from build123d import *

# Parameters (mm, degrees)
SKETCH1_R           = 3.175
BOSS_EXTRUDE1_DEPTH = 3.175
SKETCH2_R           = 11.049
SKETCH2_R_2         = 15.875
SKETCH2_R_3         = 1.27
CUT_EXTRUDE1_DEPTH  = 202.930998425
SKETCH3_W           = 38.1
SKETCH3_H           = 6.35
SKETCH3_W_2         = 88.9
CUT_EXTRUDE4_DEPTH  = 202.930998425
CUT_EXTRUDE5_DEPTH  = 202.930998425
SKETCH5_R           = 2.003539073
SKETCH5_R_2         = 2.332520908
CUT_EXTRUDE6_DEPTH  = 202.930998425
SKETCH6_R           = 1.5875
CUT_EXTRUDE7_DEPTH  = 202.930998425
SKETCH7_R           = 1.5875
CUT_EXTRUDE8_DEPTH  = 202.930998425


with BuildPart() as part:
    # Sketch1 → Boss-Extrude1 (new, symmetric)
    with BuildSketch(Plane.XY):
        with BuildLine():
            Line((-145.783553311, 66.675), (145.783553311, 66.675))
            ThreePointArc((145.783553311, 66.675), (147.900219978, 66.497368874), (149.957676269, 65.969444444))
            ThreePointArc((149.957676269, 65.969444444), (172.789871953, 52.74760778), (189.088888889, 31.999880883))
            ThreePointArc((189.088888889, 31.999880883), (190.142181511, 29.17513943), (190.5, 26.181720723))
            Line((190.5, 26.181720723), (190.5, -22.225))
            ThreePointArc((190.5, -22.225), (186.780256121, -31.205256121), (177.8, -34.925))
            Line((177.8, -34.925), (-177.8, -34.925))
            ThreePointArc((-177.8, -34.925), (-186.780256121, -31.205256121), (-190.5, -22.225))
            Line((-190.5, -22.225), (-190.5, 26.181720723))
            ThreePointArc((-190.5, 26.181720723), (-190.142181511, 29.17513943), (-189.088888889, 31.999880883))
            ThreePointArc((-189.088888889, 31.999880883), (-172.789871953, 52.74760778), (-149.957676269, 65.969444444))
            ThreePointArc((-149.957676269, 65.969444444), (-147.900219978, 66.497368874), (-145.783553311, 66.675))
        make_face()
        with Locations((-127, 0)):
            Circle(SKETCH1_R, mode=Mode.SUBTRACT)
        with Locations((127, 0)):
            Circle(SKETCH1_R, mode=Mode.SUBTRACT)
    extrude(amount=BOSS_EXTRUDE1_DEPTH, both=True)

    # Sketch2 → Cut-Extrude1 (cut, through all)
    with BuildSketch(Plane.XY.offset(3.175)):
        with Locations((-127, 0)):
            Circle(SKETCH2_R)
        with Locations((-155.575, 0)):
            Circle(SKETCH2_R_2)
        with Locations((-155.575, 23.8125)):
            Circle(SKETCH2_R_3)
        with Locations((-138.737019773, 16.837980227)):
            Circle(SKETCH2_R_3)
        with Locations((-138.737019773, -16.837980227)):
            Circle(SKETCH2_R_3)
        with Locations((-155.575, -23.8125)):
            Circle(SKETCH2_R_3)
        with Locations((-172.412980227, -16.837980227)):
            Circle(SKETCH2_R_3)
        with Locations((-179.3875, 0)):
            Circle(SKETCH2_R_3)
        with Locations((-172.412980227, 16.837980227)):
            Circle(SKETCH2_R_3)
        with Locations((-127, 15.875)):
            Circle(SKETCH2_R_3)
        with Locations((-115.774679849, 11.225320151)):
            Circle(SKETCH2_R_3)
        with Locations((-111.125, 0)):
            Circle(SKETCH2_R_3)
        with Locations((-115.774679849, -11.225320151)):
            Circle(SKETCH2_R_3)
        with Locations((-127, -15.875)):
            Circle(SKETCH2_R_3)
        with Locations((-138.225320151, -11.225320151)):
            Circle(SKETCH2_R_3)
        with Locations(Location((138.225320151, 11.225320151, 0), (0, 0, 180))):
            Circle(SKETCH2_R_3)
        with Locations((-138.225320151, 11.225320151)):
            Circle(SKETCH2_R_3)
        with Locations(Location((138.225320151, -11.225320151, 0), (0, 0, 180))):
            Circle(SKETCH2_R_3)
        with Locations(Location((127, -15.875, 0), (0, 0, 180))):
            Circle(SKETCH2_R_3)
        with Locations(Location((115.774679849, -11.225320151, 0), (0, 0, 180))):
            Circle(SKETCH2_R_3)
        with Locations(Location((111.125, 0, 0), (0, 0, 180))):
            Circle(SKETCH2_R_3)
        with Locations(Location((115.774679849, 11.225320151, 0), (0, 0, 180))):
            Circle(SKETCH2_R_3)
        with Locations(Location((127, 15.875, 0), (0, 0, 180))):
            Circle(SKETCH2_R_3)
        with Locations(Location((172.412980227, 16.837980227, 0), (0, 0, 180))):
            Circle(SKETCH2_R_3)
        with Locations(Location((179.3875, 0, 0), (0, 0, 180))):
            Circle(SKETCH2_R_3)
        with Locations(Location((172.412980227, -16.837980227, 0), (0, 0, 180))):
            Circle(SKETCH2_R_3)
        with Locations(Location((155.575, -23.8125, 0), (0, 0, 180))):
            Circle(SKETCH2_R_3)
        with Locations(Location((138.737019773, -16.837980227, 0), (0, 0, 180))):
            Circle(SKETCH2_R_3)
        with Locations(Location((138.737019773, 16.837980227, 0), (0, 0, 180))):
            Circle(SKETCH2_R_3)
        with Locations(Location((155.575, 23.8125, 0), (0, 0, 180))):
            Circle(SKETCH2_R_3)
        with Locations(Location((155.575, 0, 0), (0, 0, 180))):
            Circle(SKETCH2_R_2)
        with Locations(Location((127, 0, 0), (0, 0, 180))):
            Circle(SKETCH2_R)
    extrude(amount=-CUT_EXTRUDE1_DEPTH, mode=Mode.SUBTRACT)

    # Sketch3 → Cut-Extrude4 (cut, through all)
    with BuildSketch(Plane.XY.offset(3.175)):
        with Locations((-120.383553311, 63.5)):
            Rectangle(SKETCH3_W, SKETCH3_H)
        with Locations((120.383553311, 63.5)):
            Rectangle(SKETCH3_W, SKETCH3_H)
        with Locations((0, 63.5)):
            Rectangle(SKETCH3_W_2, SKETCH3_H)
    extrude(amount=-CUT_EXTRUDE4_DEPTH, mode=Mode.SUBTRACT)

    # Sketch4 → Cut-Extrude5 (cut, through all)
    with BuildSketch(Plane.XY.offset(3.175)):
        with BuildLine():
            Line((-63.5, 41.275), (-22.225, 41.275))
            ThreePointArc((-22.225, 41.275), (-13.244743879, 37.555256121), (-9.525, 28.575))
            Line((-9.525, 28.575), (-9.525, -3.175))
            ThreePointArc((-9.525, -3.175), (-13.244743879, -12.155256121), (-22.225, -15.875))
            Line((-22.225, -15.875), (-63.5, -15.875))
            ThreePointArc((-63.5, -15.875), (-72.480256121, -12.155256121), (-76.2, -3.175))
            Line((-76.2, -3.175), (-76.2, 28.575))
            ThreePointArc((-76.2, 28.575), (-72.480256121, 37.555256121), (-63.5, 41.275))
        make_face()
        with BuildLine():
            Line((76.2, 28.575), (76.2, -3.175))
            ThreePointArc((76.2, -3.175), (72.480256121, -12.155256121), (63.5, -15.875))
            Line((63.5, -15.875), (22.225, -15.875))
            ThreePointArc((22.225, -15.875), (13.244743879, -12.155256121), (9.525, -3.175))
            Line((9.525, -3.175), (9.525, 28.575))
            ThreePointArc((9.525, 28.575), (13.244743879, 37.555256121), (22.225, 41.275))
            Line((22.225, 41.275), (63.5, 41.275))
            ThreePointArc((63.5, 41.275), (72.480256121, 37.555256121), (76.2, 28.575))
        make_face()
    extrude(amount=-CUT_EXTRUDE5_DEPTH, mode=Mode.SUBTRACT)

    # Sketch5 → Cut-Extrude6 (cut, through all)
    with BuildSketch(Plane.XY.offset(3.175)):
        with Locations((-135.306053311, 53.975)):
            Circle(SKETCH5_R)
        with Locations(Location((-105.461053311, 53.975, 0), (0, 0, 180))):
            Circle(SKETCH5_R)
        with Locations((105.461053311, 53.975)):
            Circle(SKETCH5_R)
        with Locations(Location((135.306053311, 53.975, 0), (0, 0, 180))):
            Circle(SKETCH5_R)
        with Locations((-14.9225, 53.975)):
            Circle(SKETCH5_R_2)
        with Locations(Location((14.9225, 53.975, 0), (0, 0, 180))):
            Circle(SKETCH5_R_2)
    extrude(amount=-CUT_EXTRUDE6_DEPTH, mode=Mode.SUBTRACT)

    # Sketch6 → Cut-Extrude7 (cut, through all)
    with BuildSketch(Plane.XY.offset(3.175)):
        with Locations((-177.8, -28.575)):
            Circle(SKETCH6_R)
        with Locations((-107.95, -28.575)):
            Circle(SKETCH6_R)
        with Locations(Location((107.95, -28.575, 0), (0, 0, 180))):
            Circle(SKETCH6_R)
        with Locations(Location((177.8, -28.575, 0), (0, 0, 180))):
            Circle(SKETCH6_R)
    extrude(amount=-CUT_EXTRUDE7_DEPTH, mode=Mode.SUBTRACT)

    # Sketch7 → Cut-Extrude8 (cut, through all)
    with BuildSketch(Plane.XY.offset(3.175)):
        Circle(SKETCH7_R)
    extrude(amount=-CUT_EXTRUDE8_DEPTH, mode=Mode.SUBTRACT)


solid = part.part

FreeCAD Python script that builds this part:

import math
import FreeCAD as App
import Part
import Sketcher
from FreeCAD import Vector
Q = App.Units.Quantity


def add_polygon(sketch, points):
    """Adds a closed chain of lines whose ends are joined by coincident constraints."""
    first, n = sketch.GeometryCount, len(points)
    for a, b in zip(points, points[1:] + points[:1]):
        sketch.addGeometry(Part.LineSegment(App.Vector(*a, 0), App.Vector(*b, 0)), False)
    for i in range(n):
        sketch.addConstraint(Sketcher.Constraint("Coincident", first + i, 2, first + (i + 1) % n, 1))

doc = App.newDocument("Part")
params = doc.addObject("Spreadsheet::Sheet", "Params")
for row, (alias, value) in enumerate([
    ("sketch1_radius", "0.5 in"),
    ("sketch1_diameter", "0.25 in"),
    ("sketch1_width", "14 in"),
    ("sketch1_radius2", "2.75 in"),
    ("pad1_length", "0.25 in"),
    ("sketch2_diameter", "0.1 in"),
    ("sketch2_diameter2", "0.87 in"),
    ("sketch2_diameter3", "1.25 in"),
    ("sketch3_width", "1.5 in"),
    ("sketch3_width2", "3.5 in"),
    ("sketch3_height", "0.25 in"),
    ("sketch4_radius", "0.5 in"),
    ("sketch4_height", "1.25 in"),
    ("sketch4_width", "1.625 in"),
    ("sketch6_diameter", "0.125 in"),
    ("sketch7_diameter", "0.125 in"),
], start=1):
    params.set(f"A{row}", alias)
    params.set(f"B{row}", "=" + value)
    params.setAlias(f"B{row}", alias)

body = doc.addObject("PartDesign::Body", "Body")

sketch1 = doc.addObject("Sketcher::SketchObject", "Sketch")
body.addObject(sketch1)
sketch1.AttachmentSupport = (doc.XY_Plane, [""])
sketch1.MapMode = "FlatFace"
sketch1.addGeometry([
    Part.LineSegment(Vector(145.783553, 66.675, 0), Vector(-145.783553, 66.675, 0)),
    Part.ArcOfCircle(Part.Circle(Vector(-145.783553, 53.975, 0), Vector(0, 0, 1), 12.7), math.radians(90), math.radians(109.188136)),
    Part.ArcOfCircle(Part.Circle(Vector(-127, 0, 0), Vector(0, 0, 1), 69.85), math.radians(109.188136), math.radians(152.733956)),
    Part.ArcOfCircle(Part.Circle(Vector(-177.8, 26.181721, 0), Vector(0, 0, 1), 12.7), math.radians(152.733956), math.radians(180)),
    Part.LineSegment(Vector(-190.5, 26.181721, 0), Vector(-190.5, -22.225, 0)),
    Part.ArcOfCircle(Part.Circle(Vector(-177.8, -22.225, 0), Vector(0, 0, 1), 12.7), math.radians(180), math.radians(270)),
    Part.LineSegment(Vector(-177.8, -34.925, 0), Vector(177.8, -34.925, 0)),
    Part.ArcOfCircle(Part.Circle(Vector(177.8, -22.225, 0), Vector(0, 0, 1), 12.7), math.radians(-90), math.radians(0)),
    Part.LineSegment(Vector(190.5, -22.225, 0), Vector(190.5, 26.181721, 0)),
    Part.ArcOfCircle(Part.Circle(Vector(177.8, 26.181721, 0), Vector(0, 0, 1), 12.7), math.radians(0), math.radians(27.266044)),
    Part.ArcOfCircle(Part.Circle(Vector(127, 0, 0), Vector(0, 0, 1), 69.85), math.radians(27.266044), math.radians(70.811864)),
    Part.ArcOfCircle(Part.Circle(Vector(145.783553, 53.975, 0), Vector(0, 0, 1), 12.7), math.radians(70.811864), math.radians(90)),
    Part.Circle(Vector(127, 0, 0), Vector(0, 0, 1), 3.175),
    Part.Circle(Vector(-127, 0, 0), Vector(0, 0, 1), 3.175),
], False)
sketch1.addConstraint([
    Sketcher.Constraint("Tangent", 0, 2, 1, 1),
    Sketcher.Constraint("Tangent", 1, 2, 2, 1),
    Sketcher.Constraint("Tangent", 2, 2, 3, 1),
    Sketcher.Constraint("Tangent", 3, 2, 4, 1),
    Sketcher.Constraint("Tangent", 4, 2, 5, 1),
    Sketcher.Constraint("Tangent", 5, 2, 6, 1),
    Sketcher.Constraint("Tangent", 6, 2, 7, 1),
    Sketcher.Constraint("Tangent", 7, 2, 8, 1),
    Sketcher.Constraint("Tangent", 8, 2, 9, 1),
    Sketcher.Constraint("Tangent", 9, 2, 10, 1),
    Sketcher.Constraint("Tangent", 10, 2, 11, 1),
    Sketcher.Constraint("Tangent", 11, 2, 0, 1),
    Sketcher.Constraint("Horizontal", 0),
    Sketcher.Constraint("Vertical", 4),
    Sketcher.Constraint("Horizontal", 6),
    Sketcher.Constraint("Vertical", 8),
    Sketcher.Constraint("Coincident", 12, 3, 10, 3),
    Sketcher.Constraint("Coincident", 13, 3, 2, 3),
    Sketcher.Constraint("Equal", 1, 3),
    Sketcher.Constraint("Equal", 3, 5),
    Sketcher.Constraint("Equal", 5, 7),
    Sketcher.Constraint("Equal", 7, 9),
    Sketcher.Constraint("Equal", 2, 10),
    Sketcher.Constraint("Equal", 9, 11),
    Sketcher.Constraint("Equal", 12, 13),
    Sketcher.Constraint("Symmetric", 2, 3, 10, 3, -1, 1),
    Sketcher.Constraint("Symmetric", 3, 3, 9, 3, -2),
    Sketcher.Constraint("Radius", 1, Q("0.5 in")),
    Sketcher.Constraint("Diameter", 12, Q("0.25 in")),
    Sketcher.Constraint("DistanceX", 6, 1, 6, 2, Q("14 in")),
    Sketcher.Constraint("Radius", 2, Q("2.75 in")),
    Sketcher.Constraint("DistanceX", 2, 3, -1, 1, Q("5 in")),
    Sketcher.Constraint("DistanceY", 5, 3, 1, 3, Q("3 in")),
    Sketcher.Constraint("DistanceY", -1, 1, 1, 3, Q("2.125 in")),
])
sketch1.setExpression("Constraints[27]", "Params.sketch1_radius")
sketch1.setExpression("Constraints[28]", "Params.sketch1_diameter")
sketch1.setExpression("Constraints[29]", "Params.sketch1_width")
sketch1.setExpression("Constraints[30]", "Params.sketch1_radius2")
pad1 = doc.addObject("PartDesign::Pad", "Pad")
body.addObject(pad1)
pad1.Profile = sketch1
pad1.setExpression("Length", "Params.pad1_length")
pad1.Midplane = True

sketch2 = doc.addObject("Sketcher::SketchObject", "Sketch001")
body.addObject(sketch2)
sketch2.AttachmentSupport = (doc.XY_Plane, [""])
sketch2.MapMode = "FlatFace"
sketch2.AttachmentOffset = App.Placement(Vector(0, 0, 0.125 * 25.4), App.Rotation())
sketch2.addGeometry([
    Part.Circle(Vector(-127, 0, 0), Vector(0, 0, 1), 11.049),
    Part.Circle(Vector(-155.575, 0, 0), Vector(0, 0, 1), 15.875),
    Part.Circle(Vector(-155.575, 23.8125, 0), Vector(0, 0, 1), 1.27),
    Part.Circle(Vector(-138.73702, 16.83798, 0), Vector(0, 0, 1), 1.27),
    Part.Circle(Vector(-138.73702, -16.83798, 0), Vector(0, 0, 1), 1.27),
    Part.Circle(Vector(-155.575, -23.8125, 0), Vector(0, 0, 1), 1.27),
    Part.Circle(Vector(-172.41298, -16.83798, 0), Vector(0, 0, 1), 1.27),
    Part.Circle(Vector(-179.3875, 0, 0), Vector(0, 0, 1), 1.27),
    Part.Circle(Vector(-172.41298, 16.83798, 0), Vector(0, 0, 1), 1.27),
    Part.Circle(Vector(-127, 15.875, 0), Vector(0, 0, 1), 1.27),
    Part.Circle(Vector(-115.77468, 11.22532, 0), Vector(0, 0, 1), 1.27),
    Part.Circle(Vector(-111.125, 0, 0), Vector(0, 0, 1), 1.27),
    Part.Circle(Vector(-115.77468, -11.22532, 0), Vector(0, 0, 1), 1.27),
    Part.Circle(Vector(-127, -15.875, 0), Vector(0, 0, 1), 1.27),
    Part.Circle(Vector(-138.22532, -11.22532, 0), Vector(0, 0, 1), 1.27),
    Part.Circle(Vector(138.22532, 11.22532, 0), Vector(0, 0, 1), 1.27),
    Part.Circle(Vector(-138.22532, 11.22532, 0), Vector(0, 0, 1), 1.27),
    Part.Circle(Vector(138.22532, -11.22532, 0), Vector(0, 0, 1), 1.27),
    Part.Circle(Vector(127, -15.875, 0), Vector(0, 0, 1), 1.27),
    Part.Circle(Vector(115.77468, -11.22532, 0), Vector(0, 0, 1), 1.27),
    Part.Circle(Vector(111.125, 0, 0), Vector(0, 0, 1), 1.27),
    Part.Circle(Vector(115.77468, 11.22532, 0), Vector(0, 0, 1), 1.27),
    Part.Circle(Vector(127, 15.875, 0), Vector(0, 0, 1), 1.27),
    Part.Circle(Vector(172.41298, 16.83798, 0), Vector(0, 0, 1), 1.27),
    Part.Circle(Vector(179.3875, 0, 0), Vector(0, 0, 1), 1.27),
    Part.Circle(Vector(172.41298, -16.83798, 0), Vector(0, 0, 1), 1.27),
    Part.Circle(Vector(155.575, -23.8125, 0), Vector(0, 0, 1), 1.27),
    Part.Circle(Vector(138.73702, -16.83798, 0), Vector(0, 0, 1), 1.27),
    Part.Circle(Vector(138.73702, 16.83798, 0), Vector(0, 0, 1), 1.27),
    Part.Circle(Vector(155.575, 23.8125, 0), Vector(0, 0, 1), 1.27),
    Part.Circle(Vector(155.575, 0, 0), Vector(0, 0, 1), 15.875),
    Part.Circle(Vector(127, 0, 0), Vector(0, 0, 1), 11.049),
], False)
sketch2.addConstraint([
    Sketcher.Constraint("Equal", 2, 3),
    Sketcher.Constraint("Equal", 3, 4),
    Sketcher.Constraint("Equal", 4, 5),
    Sketcher.Constraint("Equal", 5, 6),
    Sketcher.Constraint("Equal", 6, 7),
    Sketcher.Constraint("Equal", 7, 8),
    Sketcher.Constraint("Equal", 8, 9),
    Sketcher.Constraint("Equal", 9, 10),
    Sketcher.Constraint("Equal", 10, 11),
    Sketcher.Constraint("Equal", 11, 12),
    Sketcher.Constraint("Equal", 12, 13),
    Sketcher.Constraint("Equal", 13, 14),
    Sketcher.Constraint("Equal", 14, 15),
    Sketcher.Constraint("Equal", 15, 16),
    Sketcher.Constraint("Equal", 16, 17),
    Sketcher.Constraint("Equal", 17, 18),
    Sketcher.Constraint("Equal", 18, 19),
    Sketcher.Constraint("Equal", 19, 20),
    Sketcher.Constraint("Equal", 20, 21),
    Sketcher.Constraint("Equal", 21, 22),
    Sketcher.Constraint("Equal", 22, 23),
    Sketcher.Constraint("Equal", 23, 24),
    Sketcher.Constraint("Equal", 24, 25),
    Sketcher.Constraint("Equal", 25, 26),
    Sketcher.Constraint("Equal", 26, 27),
    Sketcher.Constraint("Equal", 27, 28),
    Sketcher.Constraint("Equal", 28, 29),
    Sketcher.Constraint("Equal", 1, 30),
    Sketcher.Constraint("Equal", 0, 31),
    Sketcher.Constraint("Symmetric", 14, 3, 15, 3, -1, 1),
    Sketcher.Constraint("Symmetric", 16, 3, 17, 3, -1, 1),
    Sketcher.Constraint("Symmetric", 9, 3, 18, 3, -1, 1),
    Sketcher.Constraint("Symmetric", 10, 3, 19, 3, -1, 1),
    Sketcher.Constraint("Symmetric", 11, 3, 20, 3, -1, 1),
    Sketcher.Constraint("Symmetric", 12, 3, 21, 3, -1, 1),
    Sketcher.Constraint("Symmetric", 13, 3, 22, 3, -1, 1),
    Sketcher.Constraint("Symmetric", 6, 3, 23, 3, -1, 1),
    Sketcher.Constraint("Symmetric", 7, 3, 24, 3, -1, 1),
    Sketcher.Constraint("Symmetric", 8, 3, 25, 3, -1, 1),
    Sketcher.Constraint("Symmetric", 2, 3, 26, 3, -1, 1),
    Sketcher.Constraint("Symmetric", 3, 3, 27, 3, -1, 1),
    Sketcher.Constraint("Symmetric", 4, 3, 28, 3, -1, 1),
    Sketcher.Constraint("Symmetric", 5, 3, 29, 3, -1, 1),
    Sketcher.Constraint("Symmetric", 1, 3, 30, 3, -1, 1),
    Sketcher.Constraint("Symmetric", 0, 3, 31, 3, -1, 1),
    Sketcher.Constraint("Symmetric", 15, 3, 16, 3, -2),
    Sketcher.Constraint("Symmetric", 13, 3, 18, 3, -2),
    Sketcher.Constraint("Symmetric", 12, 3, 19, 3, -2),
    Sketcher.Constraint("Symmetric", 8, 3, 23, 3, -2),
    Sketcher.Constraint("Symmetric", 5, 3, 26, 3, -2),
    Sketcher.Constraint("Symmetric", 4, 3, 27, 3, -2),
    Sketcher.Constraint("PointOnObject", 0, 3, -1),
    Sketcher.Constraint("PointOnObject", 1, 3, -1),
    Sketcher.Constraint("PointOnObject", 7, 3, -1),
    Sketcher.Constraint("PointOnObject", 11, 3, -1),
    Sketcher.Constraint("Horizontal", 4, 3, 6, 3),
    Sketcher.Constraint("Horizontal", 12, 3, 14, 3),
    Sketcher.Constraint("Vertical", 1, 3, 2, 3),
    Sketcher.Constraint("Vertical", 0, 3, 9, 3),
    Sketcher.Constraint("Diameter", 2, Q("0.1 in")),
    Sketcher.Constraint("Diameter", 0, Q("0.87 in")),
    Sketcher.Constraint("Diameter", 1, Q("1.25 in")),
    Sketcher.Constraint("DistanceX", 0, 3, -1, 1, Q("5 in")),
    Sketcher.Constraint("DistanceX", 10, 3, 15, 3, Q("10 in")),
    Sketcher.Constraint("DistanceX", 11, 3, 20, 3, Q("8.75 in")),
    Sketcher.Constraint("DistanceX", 1, 3, -1, 1, Q("6.125 in")),
    Sketcher.Constraint("DistanceY", -1, 1, 2, 3, Q("0.9375 in")),
    Sketcher.Constraint("DistanceX", 7, 3, -1, 1, Q("7.0625 in")),
    Sketcher.Constraint("DistanceY", -1, 1, 9, 3, Q("0.625 in")),
    Sketcher.Constraint("DistanceY", 4, 3, 10, 3, Q("28.0633 mm")),
    Sketcher.Constraint("DistanceX", 4, 3, 14, 3, Q("0.5117 mm")),
    Sketcher.Constraint("DistanceX", 21, 3, 23, 3, Q("56.6383 mm")),
    Sketcher.Constraint("DistanceX", 3, 3, -1, 1, Q("138.73702 mm")),
    Sketcher.Constraint("DistanceY", -1, 1, 3, 3, Q("16.83798 mm")),
])
sketch2.setExpression("Constraints[59]", "Params.sketch2_diameter")
sketch2.setExpression("Constraints[60]", "Params.sketch2_diameter2")
sketch2.setExpression("Constraints[61]", "Params.sketch2_diameter3")
pocket1 = doc.addObject("PartDesign::Pocket", "Pocket")
body.addObject(pocket1)
pocket1.Profile = sketch2
pocket1.Type = "ThroughAll"

sketch3 = doc.addObject("Sketcher::SketchObject", "Sketch002")
body.addObject(sketch3)
sketch3.AttachmentSupport = (doc.XY_Plane, [""])
sketch3.MapMode = "FlatFace"
sketch3.AttachmentOffset = App.Placement(Vector(0, 0, 0.125 * 25.4), App.Rotation())
add_polygon(sketch3, [(-139.433553, 66.675), (-139.433553, 60.325), (-101.333553, 60.325), (-101.333553, 66.675)])
add_polygon(sketch3, [(101.333553, 66.675), (101.333553, 60.325), (139.433553, 60.325), (139.433553, 66.675)])
add_polygon(sketch3, [(-44.45, 66.675), (-44.45, 60.325), (44.45, 60.325), (44.45, 66.675)])
sketch3.addConstraint([
    Sketcher.Constraint("Vertical", 0),
    Sketcher.Constraint("Horizontal", 1),
    Sketcher.Constraint("Vertical", 2),
    Sketcher.Constraint("Horizontal", 3),
    Sketcher.Constraint("Vertical", 4),
    Sketcher.Constraint("Horizontal", 5),
    Sketcher.Constraint("Vertical", 6),
    Sketcher.Constraint("Horizontal", 7),
    Sketcher.Constraint("Vertical", 8),
    Sketcher.Constraint("Horizontal", 9),
    Sketcher.Constraint("Vertical", 10),
    Sketcher.Constraint("Horizontal", 11),
    Sketcher.Constraint("Symmetric", 1, 2, 4, 2, -2),
    Sketcher.Constraint("Symmetric", 3, 2, 6, 2, -2),
    Sketcher.Constraint("Horizontal", 5, 2, 8, 2),
    Sketcher.Constraint("Horizontal", 7, 2, 10, 2),
    Sketcher.Constraint("DistanceX", 1, 1, 1, 2, Q("1.5 in")),
    Sketcher.Constraint("DistanceX", 9, 1, 9, 2, Q("3.5 in")),
    Sketcher.Constraint("DistanceY", 0, 2, 0, 1, Q("0.25 in")),
    Sketcher.Constraint("DistanceX", 8, 2, -1, 1, Q("1.75 in")),
    Sketcher.Constraint("DistanceY", -1, 1, 0, 2, Q("2.375 in")),
    Sketcher.Constraint("DistanceX", 0, 2, -1, 1, Q("139.433553 mm")),
])
sketch3.setExpression("Constraints[28]", "Params.sketch3_width")
sketch3.setExpression("Constraints[29]", "Params.sketch3_width2")
sketch3.setExpression("Constraints[30]", "Params.sketch3_height")
pocket2 = doc.addObject("PartDesign::Pocket", "Pocket001")
body.addObject(pocket2)
pocket2.Profile = sketch3
pocket2.Type = "ThroughAll"

sketch4 = doc.addObject("Sketcher::SketchObject", "Sketch003")
body.addObject(sketch4)
sketch4.AttachmentSupport = (doc.XY_Plane, [""])
sketch4.MapMode = "FlatFace"
sketch4.AttachmentOffset = App.Placement(Vector(0, 0, 0.125 * 25.4), App.Rotation())
sketch4.addGeometry([
    Part.LineSegment(Vector(-22.225, 41.275, 0), Vector(-63.5, 41.275, 0)),
    Part.ArcOfCircle(Part.Circle(Vector(-63.5, 28.575, 0), Vector(0, 0, 1), 12.7), math.radians(90), math.radians(180)),
    Part.LineSegment(Vector(-76.2, 28.575, 0), Vector(-76.2, -3.175, 0)),
    Part.ArcOfCircle(Part.Circle(Vector(-63.5, -3.175, 0), Vector(0, 0, 1), 12.7), math.radians(180), math.radians(270)),
    Part.LineSegment(Vector(-63.5, -15.875, 0), Vector(-22.225, -15.875, 0)),
    Part.ArcOfCircle(Part.Circle(Vector(-22.225, -3.175, 0), Vector(0, 0, 1), 12.7), math.radians(-90), math.radians(0)),
    Part.LineSegment(Vector(-9.525, -3.175, 0), Vector(-9.525, 28.575, 0)),
    Part.ArcOfCircle(Part.Circle(Vector(-22.225, 28.575, 0), Vector(0, 0, 1), 12.7), math.radians(0), math.radians(90)),
    Part.LineSegment(Vector(76.2, -3.175, 0), Vector(76.2, 28.575, 0)),
    Part.ArcOfCircle(Part.Circle(Vector(63.5, 28.575, 0), Vector(0, 0, 1), 12.7), math.radians(0), math.radians(90)),
    Part.LineSegment(Vector(63.5, 41.275, 0), Vector(22.225, 41.275, 0)),
    Part.ArcOfCircle(Part.Circle(Vector(22.225, 28.575, 0), Vector(0, 0, 1), 12.7), math.radians(90), math.radians(180)),
    Part.LineSegment(Vector(9.525, 28.575, 0), Vector(9.525, -3.175, 0)),
    Part.ArcOfCircle(Part.Circle(Vector(22.225, -3.175, 0), Vector(0, 0, 1), 12.7), math.radians(180), math.radians(270)),
    Part.LineSegment(Vector(22.225, -15.875, 0), Vector(63.5, -15.875, 0)),
    Part.ArcOfCircle(Part.Circle(Vector(63.5, -3.175, 0), Vector(0, 0, 1), 12.7), math.radians(-90), math.radians(0)),
], False)
sketch4.addConstraint([
    Sketcher.Constraint("Tangent", 0, 2, 1, 1),
    Sketcher.Constraint("Tangent", 1, 2, 2, 1),
    Sketcher.Constraint("Tangent", 2, 2, 3, 1),
    Sketcher.Constraint("Tangent", 3, 2, 4, 1),
    Sketcher.Constraint("Tangent", 4, 2, 5, 1),
    Sketcher.Constraint("Tangent", 5, 2, 6, 1),
    Sketcher.Constraint("Tangent", 6, 2, 7, 1),
    Sketcher.Constraint("Tangent", 7, 2, 0, 1),
    Sketcher.Constraint("Tangent", 8, 2, 9, 1),
    Sketcher.Constraint("Tangent", 9, 2, 10, 1),
    Sketcher.Constraint("Tangent", 10, 2, 11, 1),
    Sketcher.Constraint("Tangent", 11, 2, 12, 1),
    Sketcher.Constraint("Tangent", 12, 2, 13, 1),
    Sketcher.Constraint("Tangent", 13, 2, 14, 1),
    Sketcher.Constraint("Tangent", 14, 2, 15, 1),
    Sketcher.Constraint("Tangent", 15, 2, 8, 1),
    Sketcher.Constraint("Horizontal", 0),
    Sketcher.Constraint("Vertical", 2),
    Sketcher.Constraint("Horizontal", 4),
    Sketcher.Constraint("Vertical", 6),
    Sketcher.Constraint("Vertical", 8),
    Sketcher.Constraint("Horizontal", 10),
    Sketcher.Constraint("Vertical", 12),
    Sketcher.Constraint("Horizontal", 14),
    Sketcher.Constraint("Equal", 1, 3),
    Sketcher.Constraint("Equal", 3, 5),
    Sketcher.Constraint("Equal", 5, 7),
    Sketcher.Constraint("Equal", 7, 9),
    Sketcher.Constraint("Equal", 9, 11),
    Sketcher.Constraint("Equal", 11, 13),
    Sketcher.Constraint("Equal", 13, 15),
    Sketcher.Constraint("Symmetric", 1, 3, 9, 3, -2),
    Sketcher.Constraint("Symmetric", 5, 3, 13, 3, -2),
    Sketcher.Constraint("Radius", 1, Q("0.5 in")),
    Sketcher.Constraint("DistanceX", 1, 2, -1, 1, Q("3 in")),
    Sketcher.Constraint("DistanceY", 2, 2, 2, 1, Q("1.25 in")),
    Sketcher.Constraint("DistanceX", 0, 2, 0, 1, Q("1.625 in")),
    Sketcher.Constraint("DistanceY", -1, 1, 1, 3, Q("1.125 in")),
])
sketch4.setExpression("Constraints[33]", "Params.sketch4_radius")
sketch4.setExpression("Constraints[35]", "Params.sketch4_height")
sketch4.setExpression("Constraints[36]", "Params.sketch4_width")
pocket3 = doc.addObject("PartDesign::Pocket", "Pocket002")
body.addObject(pocket3)
pocket3.Profile = sketch4
pocket3.Type = "ThroughAll"

sketch5 = doc.addObject("Sketcher::SketchObject", "Sketch004")
body.addObject(sketch5)
sketch5.AttachmentSupport = (doc.XY_Plane, [""])
sketch5.MapMode = "FlatFace"
sketch5.AttachmentOffset = App.Placement(Vector(0, 0, 0.125 * 25.4), App.Rotation())
sketch5.addGeometry([
    Part.Circle(Vector(-135.306053, 53.975, 0), Vector(0, 0, 1), 2.003539),
    Part.Circle(Vector(-105.461053, 53.975, 0), Vector(0, 0, 1), 2.003539),
    Part.Circle(Vector(105.461053, 53.975, 0), Vector(0, 0, 1), 2.003539),
    Part.Circle(Vector(135.306053, 53.975, 0), Vector(0, 0, 1), 2.003539),
    Part.Circle(Vector(-14.9225, 53.975, 0), Vector(0, 0, 1), 2.332521),
    Part.Circle(Vector(14.9225, 53.975, 0), Vector(0, 0, 1), 2.332521),
], False)
sketch5.addConstraint([
    Sketcher.Constraint("Equal", 0, 1),
    Sketcher.Constraint("Equal", 1, 2),
    Sketcher.Constraint("Equal", 2, 3),
    Sketcher.Constraint("Equal", 4, 5),
    Sketcher.Constraint("Symmetric", 1, 3, 2, 3, -2),
    Sketcher.Constraint("Symmetric", 0, 3, 3, 3, -2),
    Sketcher.Constraint("Symmetric", 4, 3, 5, 3, -2),
    Sketcher.Constraint("Horizontal", 0, 3, 1, 3),
    Sketcher.Constraint("Horizontal", 3, 3, 4, 3),
    Sketcher.Constraint("Diameter", 0, Q("4.007078 mm")),
    Sketcher.Constraint("Diameter", 4, Q("4.665042 mm")),
    Sketcher.Constraint("DistanceY", -1, 1, 0, 3, Q("2.125 in")),
    Sketcher.Constraint("DistanceX", 0, 3, 1, 3, Q("1.175 in")),
    Sketcher.Constraint("DistanceX", 4, 3, 5, 3, Q("1.175 in")),
    Sketcher.Constraint("DistanceX", 0, 3, -1, 1, Q("135.306053 mm")),
])
pocket4 = doc.addObject("PartDesign::Pocket", "Pocket003")
body.addObject(pocket4)
pocket4.Profile = sketch5
pocket4.Type = "ThroughAll"

sketch6 = doc.addObject("Sketcher::SketchObject", "Sketch005")
body.addObject(sketch6)
sketch6.AttachmentSupport = (doc.XY_Plane, [""])
sketch6.MapMode = "FlatFace"
sketch6.AttachmentOffset = App.Placement(Vector(0, 0, 0.125 * 25.4), App.Rotation())
sketch6.addGeometry([
    Part.Circle(Vector(-177.8, -28.575, 0), Vector(0, 0, 1), 1.5875),
    Part.Circle(Vector(-107.95, -28.575, 0), Vector(0, 0, 1), 1.5875),
    Part.Circle(Vector(107.95, -28.575, 0), Vector(0, 0, 1), 1.5875),
    Part.Circle(Vector(177.8, -28.575, 0), Vector(0, 0, 1), 1.5875),
], False)
sketch6.addConstraint([
    Sketcher.Constraint("Equal", 0, 1),
    Sketcher.Constraint("Equal", 1, 2),
    Sketcher.Constraint("Equal", 2, 3),
    Sketcher.Constraint("Symmetric", 1, 3, 2, 3, -2),
    Sketcher.Constraint("Symmetric", 0, 3, 3, 3, -2),
    Sketcher.Constraint("Horizontal", 0, 3, 1, 3),
    Sketcher.Constraint("Diameter", 0, Q("0.125 in")),
    Sketcher.Constraint("DistanceX", 0, 3, -1, 1, Q("7 in")),
    Sketcher.Constraint("DistanceX", 1, 3, 2, 3, Q("8.5 in")),
    Sketcher.Constraint("DistanceY", 0, 3, -1, 1, Q("1.125 in")),
])
sketch6.setExpression("Constraints[6]", "Params.sketch6_diameter")
pocket5 = doc.addObject("PartDesign::Pocket", "Pocket004")
body.addObject(pocket5)
pocket5.Profile = sketch6
pocket5.Type = "ThroughAll"

sketch7 = doc.addObject("Sketcher::SketchObject", "Sketch006")
body.addObject(sketch7)
sketch7.AttachmentSupport = (doc.XY_Plane, [""])
sketch7.MapMode = "FlatFace"
sketch7.AttachmentOffset = App.Placement(Vector(0, 0, 0.125 * 25.4), App.Rotation())
sketch7.addGeometry(Part.Circle(Vector(0, 0, 0), Vector(0, 0, 1), 1.5875), False)
sketch7.addConstraint([
    Sketcher.Constraint("Coincident", 0, 3, -1, 1),
    Sketcher.Constraint("Diameter", 0, Q("0.125 in")),
])
sketch7.setExpression("Constraints[1]", "Params.sketch7_diameter")
pocket6 = doc.addObject("PartDesign::Pocket", "Pocket005")
body.addObject(pocket6)
pocket6.Profile = sketch7
pocket6.Type = "ThroughAll"

doc.recompute()
